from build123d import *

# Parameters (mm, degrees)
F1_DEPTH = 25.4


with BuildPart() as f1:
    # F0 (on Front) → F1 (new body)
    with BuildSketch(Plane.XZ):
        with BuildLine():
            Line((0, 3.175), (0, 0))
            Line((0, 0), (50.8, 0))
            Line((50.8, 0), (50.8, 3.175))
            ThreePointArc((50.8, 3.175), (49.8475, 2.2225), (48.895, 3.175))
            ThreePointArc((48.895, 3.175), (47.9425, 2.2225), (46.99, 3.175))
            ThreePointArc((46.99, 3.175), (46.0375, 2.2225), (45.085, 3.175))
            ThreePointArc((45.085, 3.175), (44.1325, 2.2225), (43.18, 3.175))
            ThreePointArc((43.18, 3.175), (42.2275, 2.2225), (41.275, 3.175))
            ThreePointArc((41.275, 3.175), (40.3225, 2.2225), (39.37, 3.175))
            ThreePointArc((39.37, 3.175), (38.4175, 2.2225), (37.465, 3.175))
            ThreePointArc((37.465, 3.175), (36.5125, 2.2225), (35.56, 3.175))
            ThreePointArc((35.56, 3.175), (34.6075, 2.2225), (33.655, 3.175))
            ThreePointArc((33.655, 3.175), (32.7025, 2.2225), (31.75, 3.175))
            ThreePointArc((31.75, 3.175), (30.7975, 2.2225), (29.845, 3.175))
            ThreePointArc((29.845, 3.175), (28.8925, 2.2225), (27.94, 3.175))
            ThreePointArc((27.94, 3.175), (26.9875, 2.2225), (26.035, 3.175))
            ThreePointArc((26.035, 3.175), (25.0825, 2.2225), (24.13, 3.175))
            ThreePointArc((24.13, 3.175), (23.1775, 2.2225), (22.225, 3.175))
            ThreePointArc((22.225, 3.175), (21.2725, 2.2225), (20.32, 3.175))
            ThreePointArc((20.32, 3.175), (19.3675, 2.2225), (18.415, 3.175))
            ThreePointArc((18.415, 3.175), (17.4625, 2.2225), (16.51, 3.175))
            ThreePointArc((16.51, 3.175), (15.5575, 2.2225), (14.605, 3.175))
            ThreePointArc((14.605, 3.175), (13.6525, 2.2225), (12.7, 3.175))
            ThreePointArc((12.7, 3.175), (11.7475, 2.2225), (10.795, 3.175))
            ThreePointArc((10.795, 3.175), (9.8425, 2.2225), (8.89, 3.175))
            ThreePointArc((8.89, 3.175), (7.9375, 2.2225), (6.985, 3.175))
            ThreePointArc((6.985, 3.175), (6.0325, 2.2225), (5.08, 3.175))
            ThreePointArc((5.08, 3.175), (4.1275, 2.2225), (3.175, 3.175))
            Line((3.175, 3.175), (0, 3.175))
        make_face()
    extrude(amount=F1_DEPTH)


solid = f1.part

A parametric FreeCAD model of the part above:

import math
import FreeCAD as App
import Part
import Sketcher
Q = App.Units.Quantity

doc = App.newDocument("Part")
body = doc.addObject("PartDesign::Body", "Body")

sketch1 = body.newObject("Sketcher::SketchObject", "Sketch")
sketch1.AttachmentSupport = (doc.getObject("XZ_Plane"), [""])
sketch1.MapMode = "FlatFace"
sketch1.addGeometry([
    Part.LineSegment(App.Vector(0, 3.175, 0), App.Vector(0, 0, 0)),
    Part.LineSegment(App.Vector(0, 0, 0), App.Vector(50.8, 0, 0)),
    Part.LineSegment(App.Vector(50.8, 0, 0), App.Vector(50.8, 3.175, 0)),
    Part.ArcOfCircle(Part.Circle(App.Vector(49.8475, 3.175, 0), App.Vector(0, 0, 1), 0.9525), math.radians(180), math.radians(360)),
    Part.ArcOfCircle(Part.Circle(App.Vector(47.9425, 3.175, 0), App.Vector(0, 0, 1), 0.9525), math.radians(180), math.radians(360)),
    Part.ArcOfCircle(Part.Circle(App.Vector(46.0375, 3.175, 0), App.Vector(0, 0, 1), 0.9525), math.radians(180), math.radians(360)),
    Part.ArcOfCircle(Part.Circle(App.Vector(44.1325, 3.175, 0), App.Vector(0, 0, 1), 0.9525), math.radians(180), math.radians(360)),
    Part.ArcOfCircle(Part.Circle(App.Vector(42.2275, 3.175, 0), App.Vector(0, 0, 1), 0.9525), math.radians(180), math.radians(360)),
    Part.ArcOfCircle(Part.Circle(App.Vector(40.3225, 3.175, 0), App.Vector(0, 0, 1), 0.9525), math.radians(180), math.radians(360)),
    Part.ArcOfCircle(Part.Circle(App.Vector(38.4175, 3.175, 0), App.Vector(0, 0, 1), 0.9525), math.radians(180), math.radians(360)),
    Part.ArcOfCircle(Part.Circle(App.Vector(36.5125, 3.175, 0), App.Vector(0, 0, 1), 0.9525), math.radians(180), math.radians(360)),
    Part.ArcOfCircle(Part.Circle(App.Vector(34.6075, 3.175, 0), App.Vector(0, 0, 1), 0.9525), math.radians(180), math.radians(360)),
    Part.ArcOfCircle(Part.Circle(App.Vector(32.7025, 3.175, 0), App.Vector(0, 0, 1), 0.9525), math.radians(180), math.radians(360)),
    Part.ArcOfCircle(Part.Circle(App.Vector(30.7975, 3.175, 0), App.Vector(0, 0, 1), 0.9525), math.radians(180), math.radians(360)),
    Part.ArcOfCircle(Part.Circle(App.Vector(28.8925, 3.175, 0), App.Vector(0, 0, 1), 0.9525), math.radians(180), math.radians(360)),
    Part.ArcOfCircle(Part.Circle(App.Vector(26.9875, 3.175, 0), App.Vector(0, 0, 1), 0.9525), math.radians(180), math.radians(360)),
    Part.ArcOfCircle(Part.Circle(App.Vector(25.0825, 3.175, 0), App.Vector(0, 0, 1), 0.9525), math.radians(180), math.radians(360)),
    Part.ArcOfCircle(Part.Circle(App.Vector(23.1775, 3.175, 0), App.Vector(0, 0, 1), 0.9525), math.radians(180), math.radians(360)),
    Part.ArcOfCircle(Part.Circle(App.Vector(21.2725, 3.175, 0), App.Vector(0, 0, 1), 0.9525), math.radians(180), math.radians(360)),
    Part.ArcOfCircle(Part.Circle(App.Vector(19.3675, 3.175, 0), App.Vector(0, 0, 1), 0.9525), math.radians(180), math.radians(360)),
    Part.ArcOfCircle(Part.Circle(App.Vector(17.4625, 3.175, 0), App.Vector(0, 0, 1), 0.9525), math.radians(180), math.radians(360)),
    Part.ArcOfCircle(Part.Circle(App.Vector(15.5575, 3.175, 0), App.Vector(0, 0, 1), 0.9525), math.radians(180), math.radians(360)),
    Part.ArcOfCircle(Part.Circle(App.Vector(13.6525, 3.175, 0), App.Vector(0, 0, 1), 0.9525), math.radians(180), math.radians(360)),
    Part.ArcOfCircle(Part.Circle(App.Vector(11.7475, 3.175, 0), App.Vector(0, 0, 1), 0.9525), math.radians(180), math.radians(360)),
    Part.ArcOfCircle(Part.Circle(App.Vector(9.8425, 3.175, 0), App.Vector(0, 0, 1), 0.9525), math.radians(180), math.radians(360)),
    Part.ArcOfCircle(Part.Circle(App.Vector(7.9375, 3.175, 0), App.Vector(0, 0, 1), 0.9525), math.radians(180), math.radians(360)),
    Part.ArcOfCircle(Part.Circle(App.Vector(6.0325, 3.175, 0), App.Vector(0, 0, 1), 0.9525), math.radians(180), math.radians(360)),
    Part.ArcOfCircle(Part.Circle(App.Vector(4.1275, 3.175, 0), App.Vector(0, 0, 1), 0.9525), math.radians(180), math.radians(360)),
    Part.LineSegment(App.Vector(3.175, 3.175, 0), App.Vector(0, 3.175, 0)),
], False)
sketch1.addConstraint([
    Sketcher.Constraint("Coincident", 0, 2, 1, 1),
    Sketcher.Constraint("Coincident", 1, 2, 2, 1),
    Sketcher.Constraint("Tangent", 2, 2, 3, 2),
    Sketcher.Constraint("Tangent", 3, 1, 4, 2),
    Sketcher.Constraint("Tangent", 4, 1, 5, 2),
    Sketcher.Constraint("Tangent", 5, 1, 6, 2),
    Sketcher.Constraint("Tangent", 6, 1, 7, 2),
    Sketcher.Constraint("Tangent", 7, 1, 8, 2),
    Sketcher.Constraint("Tangent", 8, 1, 9, 2),
    Sketcher.Constraint("Tangent", 9, 1, 10, 2),
    Sketcher.Constraint("Tangent", 10, 1, 11, 2),
    Sketcher.Constraint("Tangent", 11, 1, 12, 2),
    Sketcher.Constraint("Tangent", 12, 1, 13, 2),
    Sketcher.Constraint("Tangent", 13, 1, 14, 2),
    Sketcher.Constraint("Tangent", 14, 1, 15, 2),
    Sketcher.Constraint("Tangent", 15, 1, 16, 2),
    Sketcher.Constraint("Tangent", 16, 1, 17, 2),
    Sketcher.Constraint("Tangent", 17, 1, 18, 2),
    Sketcher.Constraint("Tangent", 18, 1, 19, 2),
    Sketcher.Constraint("Tangent", 19, 1, 20, 2),
    Sketcher.Constraint("Tangent", 20, 1, 21, 2),
    Sketcher.Constraint("Tangent", 21, 1, 22, 2),
    Sketcher.Constraint("Tangent", 22, 1, 23, 2),
    Sketcher.Constraint("Tangent", 23, 1, 24, 2),
    Sketcher.Constraint("Tangent", 24, 1, 25, 2),
    Sketcher.Constraint("Tangent", 25, 1, 26, 2),
    Sketcher.Constraint("Tangent", 26, 1, 27, 2),
    Sketcher.Constraint("Coincident", 27, 1, 28, 1),
    Sketcher.Constraint("Coincident", 28, 2, 0, 1),
    Sketcher.Constraint("Vertical", 0),
    Sketcher.Constraint("Horizontal", 1),
    Sketcher.Constraint("Vertical", 2),
    Sketcher.Constraint("Horizontal", 28),
    Sketcher.Constraint("Coincident", 0, 2, -1, 1),
    Sketcher.Constraint("Equal", 3, 4),
    Sketcher.Constraint("Equal", 4, 5),
    Sketcher.Constraint("Equal", 5, 6),
    Sketcher.Constraint("Equal", 6, 7),
    Sketcher.Constraint("Equal", 7, 8),
    Sketcher.Constraint("Equal", 8, 9),
    Sketcher.Constraint("Equal", 9, 10),
    Sketcher.Constraint("Equal", 10, 11),
    Sketcher.Constraint("Equal", 11, 12),
    Sketcher.Constraint("Equal", 12, 13),
    Sketcher.Constraint("Equal", 13, 14),
    Sketcher.Constraint("Equal", 14, 15),
    Sketcher.Constraint("Equal", 15, 16),
    Sketcher.Constraint("Equal", 16, 17),
    Sketcher.Constraint("Equal", 17, 18),
    Sketcher.Constraint("Equal", 18, 19),
    Sketcher.Constraint("Equal", 19, 20),
    Sketcher.Constraint("Equal", 20, 21),
    Sketcher.Constraint("Equal", 21, 22),
    Sketcher.Constraint("Equal", 22, 23),
    Sketcher.Constraint("Equal", 23, 24),
    Sketcher.Constraint("Equal", 24, 25),
    Sketcher.Constraint("Equal", 25, 26),
    Sketcher.Constraint("Equal", 26, 27),
    Sketcher.Constraint("Horizontal", 3, 3, 4, 3),
    Sketcher.Constraint("Horizontal", 4, 3, 5, 3),
    Sketcher.Constraint("Horizontal", 5, 3, 6, 3),
    Sketcher.Constraint("Horizontal", 6, 3, 7, 3),
    Sketcher.Constraint("Horizontal", 7, 3, 8, 3),
    Sketcher.Constraint("Horizontal", 8, 3, 9, 3),
    Sketcher.Constraint("Horizontal", 9, 3, 10, 3),
    Sketcher.Constraint("Horizontal", 10, 3, 11, 3),
    Sketcher.Constraint("Horizontal", 11, 3, 12, 3),
    Sketcher.Constraint("Horizontal", 12, 3, 13, 3),
    Sketcher.Constraint("Horizontal", 13, 3, 14, 3),
    Sketcher.Constraint("Horizontal", 14, 3, 15, 3),
    Sketcher.Constraint("Horizontal", 15, 3, 16, 3),
    Sketcher.Constraint("Horizontal", 16, 3, 17, 3),
    Sketcher.Constraint("Horizontal", 17, 3, 18, 3),
    Sketcher.Constraint("Horizontal", 18, 3, 19, 3),
    Sketcher.Constraint("Horizontal", 19, 3, 20, 3),
    Sketcher.Constraint("Horizontal", 20, 3, 21, 3),
    Sketcher.Constraint("Horizontal", 21, 3, 22, 3),
    Sketcher.Constraint("Horizontal", 22, 3, 23, 3),
    Sketcher.Constraint("Horizontal", 23, 3, 24, 3),
    Sketcher.Constraint("Horizontal", 24, 3, 25, 3),
    Sketcher.Constraint("Horizontal", 25, 3, 26, 3),
    Sketcher.Constraint("Horizontal", 26, 3, 27, 3),
    Sketcher.Constraint("Horizontal", 26, 1, 27, 1),
    Sketcher.Constraint("Equal", 28, 0),
    Sketcher.Constraint("DistanceX", 1, 1, 1, 2, Q("2 in")),
    Sketcher.Constraint("DistanceX", -1, 1, 6, 1, Q("1.7 in")),
])
pad1 = body.newObject("PartDesign::Pad", "Pad")
pad1.Profile = sketch1
pad1.Length = Q("1 in")

doc.recompute()
